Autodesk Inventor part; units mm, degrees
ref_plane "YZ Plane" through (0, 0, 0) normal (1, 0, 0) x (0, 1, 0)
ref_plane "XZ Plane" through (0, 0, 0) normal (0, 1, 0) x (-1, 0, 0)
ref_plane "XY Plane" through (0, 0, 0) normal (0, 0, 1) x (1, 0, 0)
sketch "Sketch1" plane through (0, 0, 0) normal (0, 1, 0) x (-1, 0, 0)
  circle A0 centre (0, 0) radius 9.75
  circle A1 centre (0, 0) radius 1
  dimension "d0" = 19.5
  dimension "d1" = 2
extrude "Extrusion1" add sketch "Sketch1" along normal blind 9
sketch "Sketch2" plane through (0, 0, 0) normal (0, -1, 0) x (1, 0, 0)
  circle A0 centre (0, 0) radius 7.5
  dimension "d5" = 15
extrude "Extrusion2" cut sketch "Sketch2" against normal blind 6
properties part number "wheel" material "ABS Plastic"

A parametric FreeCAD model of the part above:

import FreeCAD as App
import Part
import Sketcher

V = App.Vector

doc = App.newDocument("Part")
body = doc.addObject("PartDesign::Body", "Body")

sketch1 = body.newObject("Sketcher::SketchObject", "Sketch")
sketch1.AttachmentSupport = (doc.getObject("XZ_Plane"), [""])
sketch1.MapMode = "FlatFace"
sketch1.addGeometry(Part.Circle(V(0, 0, 0), V(0, 0, 1), 9.8), False)
sketch1.addGeometry(Part.Circle(V(0, 0, 0), V(0, 0, 1), 1), False)
sketch1.addConstraint(Sketcher.Constraint("Coincident", 0, 3, -1, 1))
sketch1.addConstraint(Sketcher.Constraint("Coincident", 1, 3, -1, 1))
sketch1.addConstraint(Sketcher.Constraint("Diameter", 1, 2.0))
sketch1.addConstraint(Sketcher.Constraint("Diameter", 0, 19.5))
pad1 = body.newObject("PartDesign::Pad", "Pad")
pad1.Profile = sketch1
pad1.Length = 9
pad1.Reversed = True

sketch2 = body.newObject("Sketcher::SketchObject", "Sketch001")
sketch2.AttachmentSupport = (doc.getObject("XZ_Plane"), [""])
sketch2.MapMode = "FlatFace"
sketch2.addGeometry(Part.Circle(V(0, 0, 0), V(0, 0, 1), 8), False)
sketch2.addConstraint(Sketcher.Constraint("Coincident", 0, 3, -1, 1))
sketch2.addConstraint(Sketcher.Constraint("Diameter", 0, 15.0))
pocket1 = body.newObject("PartDesign::Pocket", "Pocket")
pocket1.Profile = sketch2
pocket1.Length = 6

doc.recompute()
